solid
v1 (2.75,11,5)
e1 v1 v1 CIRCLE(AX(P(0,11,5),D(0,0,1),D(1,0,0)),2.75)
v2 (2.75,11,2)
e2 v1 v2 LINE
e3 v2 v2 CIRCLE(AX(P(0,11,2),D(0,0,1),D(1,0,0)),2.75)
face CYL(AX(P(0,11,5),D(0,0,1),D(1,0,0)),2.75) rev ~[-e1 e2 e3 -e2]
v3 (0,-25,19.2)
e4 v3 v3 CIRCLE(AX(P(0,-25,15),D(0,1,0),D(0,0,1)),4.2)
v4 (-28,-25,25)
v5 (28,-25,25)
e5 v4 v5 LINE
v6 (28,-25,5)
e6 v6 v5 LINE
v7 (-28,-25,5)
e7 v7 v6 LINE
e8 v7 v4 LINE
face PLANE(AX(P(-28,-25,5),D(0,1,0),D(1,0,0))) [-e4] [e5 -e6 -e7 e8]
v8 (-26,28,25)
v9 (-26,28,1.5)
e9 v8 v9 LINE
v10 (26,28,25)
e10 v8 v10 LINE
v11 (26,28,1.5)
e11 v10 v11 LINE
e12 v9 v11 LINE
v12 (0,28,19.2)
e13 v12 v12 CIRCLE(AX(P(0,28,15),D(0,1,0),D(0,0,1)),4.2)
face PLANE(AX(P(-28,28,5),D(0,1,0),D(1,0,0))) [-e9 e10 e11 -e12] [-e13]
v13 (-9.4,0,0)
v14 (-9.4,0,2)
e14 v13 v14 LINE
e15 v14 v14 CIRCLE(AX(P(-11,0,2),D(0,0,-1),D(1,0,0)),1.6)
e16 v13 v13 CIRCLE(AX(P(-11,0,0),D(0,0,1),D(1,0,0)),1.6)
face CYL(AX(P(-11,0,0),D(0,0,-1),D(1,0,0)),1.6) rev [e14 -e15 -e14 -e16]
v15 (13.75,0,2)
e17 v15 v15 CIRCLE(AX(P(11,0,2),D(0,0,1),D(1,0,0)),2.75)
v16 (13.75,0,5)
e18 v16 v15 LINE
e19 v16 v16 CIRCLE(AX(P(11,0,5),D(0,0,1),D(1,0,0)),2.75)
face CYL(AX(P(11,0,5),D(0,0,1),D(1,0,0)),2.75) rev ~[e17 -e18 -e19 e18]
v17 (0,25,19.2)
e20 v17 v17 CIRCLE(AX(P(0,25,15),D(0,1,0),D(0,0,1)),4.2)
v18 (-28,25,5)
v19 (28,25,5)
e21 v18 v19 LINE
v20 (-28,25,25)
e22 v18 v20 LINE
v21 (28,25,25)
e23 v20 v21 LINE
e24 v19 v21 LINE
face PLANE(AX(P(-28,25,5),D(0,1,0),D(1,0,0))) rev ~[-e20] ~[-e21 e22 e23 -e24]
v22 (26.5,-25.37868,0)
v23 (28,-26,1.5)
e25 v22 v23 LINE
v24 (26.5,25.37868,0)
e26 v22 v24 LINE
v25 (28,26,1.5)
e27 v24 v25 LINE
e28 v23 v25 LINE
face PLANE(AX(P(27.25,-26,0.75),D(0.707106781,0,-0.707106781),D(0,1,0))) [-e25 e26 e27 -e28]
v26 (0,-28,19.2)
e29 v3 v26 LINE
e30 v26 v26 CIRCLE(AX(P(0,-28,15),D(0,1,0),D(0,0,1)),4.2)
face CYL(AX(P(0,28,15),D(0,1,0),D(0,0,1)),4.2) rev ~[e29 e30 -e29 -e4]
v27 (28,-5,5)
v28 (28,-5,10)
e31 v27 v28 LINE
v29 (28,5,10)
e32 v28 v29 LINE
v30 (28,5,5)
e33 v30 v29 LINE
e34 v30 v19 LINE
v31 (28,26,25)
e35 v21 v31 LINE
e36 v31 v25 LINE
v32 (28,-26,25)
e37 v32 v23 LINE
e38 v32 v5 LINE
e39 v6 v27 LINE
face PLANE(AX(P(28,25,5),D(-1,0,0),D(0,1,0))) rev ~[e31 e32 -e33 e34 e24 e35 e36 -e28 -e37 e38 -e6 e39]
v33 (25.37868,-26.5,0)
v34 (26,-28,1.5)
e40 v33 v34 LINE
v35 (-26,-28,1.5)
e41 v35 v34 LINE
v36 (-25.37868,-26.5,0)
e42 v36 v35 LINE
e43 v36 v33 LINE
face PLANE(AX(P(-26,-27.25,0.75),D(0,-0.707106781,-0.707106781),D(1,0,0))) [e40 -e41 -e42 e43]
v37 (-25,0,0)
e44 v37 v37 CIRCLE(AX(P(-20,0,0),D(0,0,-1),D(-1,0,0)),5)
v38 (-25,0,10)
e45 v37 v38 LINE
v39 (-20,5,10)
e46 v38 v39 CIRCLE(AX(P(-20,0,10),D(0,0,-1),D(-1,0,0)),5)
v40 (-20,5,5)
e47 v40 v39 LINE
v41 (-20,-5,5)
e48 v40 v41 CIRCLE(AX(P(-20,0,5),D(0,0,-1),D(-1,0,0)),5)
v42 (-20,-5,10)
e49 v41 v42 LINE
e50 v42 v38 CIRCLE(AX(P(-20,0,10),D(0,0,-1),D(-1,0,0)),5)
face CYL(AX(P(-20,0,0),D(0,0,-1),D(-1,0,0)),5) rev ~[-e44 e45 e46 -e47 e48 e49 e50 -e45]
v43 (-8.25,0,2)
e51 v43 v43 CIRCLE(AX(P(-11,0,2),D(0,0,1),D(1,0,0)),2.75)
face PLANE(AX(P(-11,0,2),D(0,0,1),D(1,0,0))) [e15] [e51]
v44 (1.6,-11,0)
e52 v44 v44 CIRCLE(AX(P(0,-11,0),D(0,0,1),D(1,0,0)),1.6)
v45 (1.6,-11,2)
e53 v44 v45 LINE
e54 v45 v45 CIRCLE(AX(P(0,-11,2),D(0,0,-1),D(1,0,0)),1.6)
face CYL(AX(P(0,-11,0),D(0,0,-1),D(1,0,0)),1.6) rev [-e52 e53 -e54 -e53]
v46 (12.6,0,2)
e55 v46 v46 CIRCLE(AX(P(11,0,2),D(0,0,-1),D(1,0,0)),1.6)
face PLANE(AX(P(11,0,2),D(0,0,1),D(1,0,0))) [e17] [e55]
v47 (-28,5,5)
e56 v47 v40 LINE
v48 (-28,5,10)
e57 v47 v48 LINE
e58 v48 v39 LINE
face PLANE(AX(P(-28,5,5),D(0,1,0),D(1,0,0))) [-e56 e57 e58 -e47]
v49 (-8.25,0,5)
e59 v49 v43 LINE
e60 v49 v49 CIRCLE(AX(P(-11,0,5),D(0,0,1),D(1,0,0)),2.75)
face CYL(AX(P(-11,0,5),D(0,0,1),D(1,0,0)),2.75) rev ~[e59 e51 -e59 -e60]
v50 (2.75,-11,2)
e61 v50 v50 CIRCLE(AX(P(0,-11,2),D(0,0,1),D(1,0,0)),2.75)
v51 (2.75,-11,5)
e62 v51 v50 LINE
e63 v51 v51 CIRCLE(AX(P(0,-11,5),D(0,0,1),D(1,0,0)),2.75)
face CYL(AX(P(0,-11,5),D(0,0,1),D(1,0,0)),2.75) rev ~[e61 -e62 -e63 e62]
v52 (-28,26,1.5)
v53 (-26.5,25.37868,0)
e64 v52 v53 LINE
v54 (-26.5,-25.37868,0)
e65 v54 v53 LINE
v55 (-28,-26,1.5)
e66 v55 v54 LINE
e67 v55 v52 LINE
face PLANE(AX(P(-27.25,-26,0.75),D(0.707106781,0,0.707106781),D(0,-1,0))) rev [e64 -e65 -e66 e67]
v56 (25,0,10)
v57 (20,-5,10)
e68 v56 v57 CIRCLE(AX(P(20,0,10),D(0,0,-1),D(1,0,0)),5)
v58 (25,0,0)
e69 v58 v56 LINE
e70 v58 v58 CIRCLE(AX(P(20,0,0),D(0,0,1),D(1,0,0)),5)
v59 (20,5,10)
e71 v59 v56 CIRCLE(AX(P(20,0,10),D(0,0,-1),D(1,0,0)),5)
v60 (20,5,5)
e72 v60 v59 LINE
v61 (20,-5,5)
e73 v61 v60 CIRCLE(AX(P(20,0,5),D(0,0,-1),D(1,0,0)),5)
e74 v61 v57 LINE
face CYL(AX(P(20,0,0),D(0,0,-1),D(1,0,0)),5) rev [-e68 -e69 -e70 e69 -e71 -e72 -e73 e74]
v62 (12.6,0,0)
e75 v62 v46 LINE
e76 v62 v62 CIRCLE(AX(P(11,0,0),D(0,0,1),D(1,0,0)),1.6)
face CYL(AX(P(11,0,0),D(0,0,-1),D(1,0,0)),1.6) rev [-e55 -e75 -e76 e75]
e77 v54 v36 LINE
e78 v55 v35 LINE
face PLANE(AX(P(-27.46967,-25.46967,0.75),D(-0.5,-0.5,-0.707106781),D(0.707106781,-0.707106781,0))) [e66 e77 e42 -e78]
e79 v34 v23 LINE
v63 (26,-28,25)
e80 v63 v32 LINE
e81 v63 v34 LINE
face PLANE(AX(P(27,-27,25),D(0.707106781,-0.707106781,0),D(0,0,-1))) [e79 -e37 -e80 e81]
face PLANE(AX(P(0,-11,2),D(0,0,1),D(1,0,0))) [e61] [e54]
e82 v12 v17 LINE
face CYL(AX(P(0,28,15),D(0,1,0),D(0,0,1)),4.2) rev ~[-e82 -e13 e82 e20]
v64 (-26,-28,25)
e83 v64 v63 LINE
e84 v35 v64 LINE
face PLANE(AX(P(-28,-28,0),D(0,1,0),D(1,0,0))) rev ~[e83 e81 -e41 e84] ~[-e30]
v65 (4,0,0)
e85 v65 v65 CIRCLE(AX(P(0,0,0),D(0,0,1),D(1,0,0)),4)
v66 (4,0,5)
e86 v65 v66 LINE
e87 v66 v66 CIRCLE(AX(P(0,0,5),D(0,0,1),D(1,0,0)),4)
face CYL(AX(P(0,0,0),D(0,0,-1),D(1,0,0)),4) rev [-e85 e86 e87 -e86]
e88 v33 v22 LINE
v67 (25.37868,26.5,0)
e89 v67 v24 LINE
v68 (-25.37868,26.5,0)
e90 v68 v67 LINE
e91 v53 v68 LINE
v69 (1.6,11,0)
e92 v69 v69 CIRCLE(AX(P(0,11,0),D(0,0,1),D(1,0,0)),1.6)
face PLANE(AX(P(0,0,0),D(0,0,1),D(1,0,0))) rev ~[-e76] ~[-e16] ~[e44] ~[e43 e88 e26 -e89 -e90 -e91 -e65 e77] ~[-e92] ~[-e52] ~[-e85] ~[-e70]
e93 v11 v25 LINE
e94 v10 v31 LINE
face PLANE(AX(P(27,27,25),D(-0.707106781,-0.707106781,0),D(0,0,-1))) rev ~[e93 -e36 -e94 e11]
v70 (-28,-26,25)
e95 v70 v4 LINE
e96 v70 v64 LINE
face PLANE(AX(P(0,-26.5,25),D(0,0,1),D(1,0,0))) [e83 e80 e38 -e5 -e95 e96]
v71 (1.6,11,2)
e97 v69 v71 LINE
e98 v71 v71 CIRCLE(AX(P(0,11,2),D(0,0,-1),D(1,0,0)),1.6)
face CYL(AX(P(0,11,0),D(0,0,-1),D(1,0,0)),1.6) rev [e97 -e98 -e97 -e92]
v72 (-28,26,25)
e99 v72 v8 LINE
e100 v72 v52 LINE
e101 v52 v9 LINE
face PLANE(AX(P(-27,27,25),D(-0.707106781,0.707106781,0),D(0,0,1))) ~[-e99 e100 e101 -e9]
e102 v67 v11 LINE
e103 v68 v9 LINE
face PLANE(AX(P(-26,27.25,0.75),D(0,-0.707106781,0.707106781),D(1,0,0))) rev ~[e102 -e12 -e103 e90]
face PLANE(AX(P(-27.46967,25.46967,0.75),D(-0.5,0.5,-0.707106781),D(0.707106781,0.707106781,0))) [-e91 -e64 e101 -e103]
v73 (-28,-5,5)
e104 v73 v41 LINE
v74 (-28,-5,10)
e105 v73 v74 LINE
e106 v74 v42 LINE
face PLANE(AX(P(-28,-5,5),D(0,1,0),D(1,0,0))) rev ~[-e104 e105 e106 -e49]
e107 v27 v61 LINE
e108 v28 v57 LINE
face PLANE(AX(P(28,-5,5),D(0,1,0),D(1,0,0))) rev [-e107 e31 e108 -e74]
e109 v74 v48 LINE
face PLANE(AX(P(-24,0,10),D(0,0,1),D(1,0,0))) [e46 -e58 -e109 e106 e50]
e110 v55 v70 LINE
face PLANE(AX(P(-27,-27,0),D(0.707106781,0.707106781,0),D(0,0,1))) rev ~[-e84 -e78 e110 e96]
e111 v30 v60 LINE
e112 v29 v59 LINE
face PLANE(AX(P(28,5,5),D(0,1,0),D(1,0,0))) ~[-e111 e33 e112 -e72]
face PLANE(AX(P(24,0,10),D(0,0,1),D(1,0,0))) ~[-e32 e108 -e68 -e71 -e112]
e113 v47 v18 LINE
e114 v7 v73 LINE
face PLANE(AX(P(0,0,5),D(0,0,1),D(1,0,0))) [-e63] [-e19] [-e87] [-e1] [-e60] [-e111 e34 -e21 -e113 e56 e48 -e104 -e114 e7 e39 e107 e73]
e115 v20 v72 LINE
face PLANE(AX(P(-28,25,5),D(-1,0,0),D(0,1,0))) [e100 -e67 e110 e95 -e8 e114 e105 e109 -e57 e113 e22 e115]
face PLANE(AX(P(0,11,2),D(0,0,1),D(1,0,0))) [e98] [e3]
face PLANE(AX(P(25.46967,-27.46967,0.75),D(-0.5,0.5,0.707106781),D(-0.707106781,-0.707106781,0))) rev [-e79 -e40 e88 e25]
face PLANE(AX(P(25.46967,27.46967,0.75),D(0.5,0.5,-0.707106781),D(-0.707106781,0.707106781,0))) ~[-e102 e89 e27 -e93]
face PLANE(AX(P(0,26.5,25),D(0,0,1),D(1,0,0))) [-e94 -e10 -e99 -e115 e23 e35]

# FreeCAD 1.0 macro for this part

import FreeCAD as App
import Part
import Sketcher


def edges_at(feature, points):
    """Names of the edges that pass closest to the given points."""
    edges = feature.Shape.Edges
    near = lambda p: min(range(len(edges)), key=lambda i: edges[i].distToShape(Part.Vertex(*p))[0])
    return sorted({f"Edge{near(p) + 1}" for p in points})

doc = App.newDocument("Part")
params = doc.addObject("Spreadsheet::Sheet", "Params")
for row, (alias, value) in enumerate([
    ("sketch1_diameter", "8 mm"),
    ("sketch1_diameter2", "3.2 mm"),
    ("sketch1_width", "56 mm"),
    ("pad1_length", "5 mm"),
    ("sketch2_width", "56 mm"),
    ("sketch2_height", "3 mm"),
    ("pad2_length", "20 mm"),
    ("sketch3_diameter", "8.4 mm"),
    ("sketch4_diameter", "5.5 mm"),
    ("pocket2_length", "3 mm"),
    ("sketch5_width", "8 mm"),
    ("sketch5_height", "10 mm"),
    ("pad3_length", "5 mm"),
    ("sketch6_diameter", "10 mm"),
    ("chamfer_size", "2 mm"),
    ("chamfer2_size", "1.5 mm"),
], start=1):
    params.set(f"A{row}", alias)
    params.set(f"B{row}", "=" + value)
    params.setAlias(f"B{row}", alias)

body = doc.addObject("PartDesign::Body", "Body")

# Sketch on XY plane
sketch1 = doc.addObject("Sketcher::SketchObject", "Sketch")
body.addObject(sketch1)
sketch1.AttachmentSupport = (doc.XY_Plane, [""])
sketch1.MapMode = "FlatFace"
sketch1.addGeometry(Part.LineSegment(App.Vector(-28, 28, 0), App.Vector(-28, -28, 0)), False)
sketch1.addGeometry(Part.LineSegment(App.Vector(-28, -28, 0), App.Vector(28, -28, 0)), False)
sketch1.addGeometry(Part.LineSegment(App.Vector(28, -28, 0), App.Vector(28, 28, 0)), False)
sketch1.addGeometry(Part.LineSegment(App.Vector(28, 28, 0), App.Vector(-28, 28, 0)), False)
sketch1.addGeometry(Part.Circle(App.Vector(0, -11, 0), App.Vector(0, 0, 1), 1.6), False)
sketch1.addGeometry(Part.Circle(App.Vector(-11, 0, 0), App.Vector(0, 0, 1), 1.6), False)
sketch1.addGeometry(Part.Circle(App.Vector(0, 0, 0), App.Vector(0, 0, 1), 4), False)
sketch1.addGeometry(Part.Circle(App.Vector(11, 0, 0), App.Vector(0, 0, 1), 1.6), False)
sketch1.addGeometry(Part.Circle(App.Vector(0, 11, 0), App.Vector(0, 0, 1), 1.6), False)
sketch1.addConstraint(Sketcher.Constraint("Coincident", 0, 2, 1, 1))
sketch1.addConstraint(Sketcher.Constraint("Coincident", 1, 2, 2, 1))
sketch1.addConstraint(Sketcher.Constraint("Coincident", 2, 2, 3, 1))
sketch1.addConstraint(Sketcher.Constraint("Coincident", 3, 2, 0, 1))
sketch1.addConstraint(Sketcher.Constraint("Vertical", 0))
sketch1.addConstraint(Sketcher.Constraint("Horizontal", 1))
sketch1.addConstraint(Sketcher.Constraint("Vertical", 2))
sketch1.addConstraint(Sketcher.Constraint("Horizontal", 3))
sketch1.addConstraint(Sketcher.Constraint("Coincident", 6, 3, -1, 1))
sketch1.addConstraint(Sketcher.Constraint("Equal", 4, 5))
sketch1.addConstraint(Sketcher.Constraint("Equal", 5, 7))
sketch1.addConstraint(Sketcher.Constraint("Equal", 7, 8))
sketch1.addConstraint(Sketcher.Constraint("Symmetric", 5, 3, 7, 3, -1, 1))
sketch1.addConstraint(Sketcher.Constraint("Symmetric", 4, 3, 8, 3, -1, 1))
sketch1.addConstraint(Sketcher.Constraint("Symmetric", 0, 2, 2, 2, -1, 1))
sketch1.addConstraint(Sketcher.Constraint("PointOnObject", 4, 3, -2))
sketch1.addConstraint(Sketcher.Constraint("PointOnObject", 5, 3, -1))
sketch1.addConstraint(Sketcher.Constraint("Equal", 3, 0))
sketch1.addConstraint(Sketcher.Constraint("Diameter", 6, 8.0))
sketch1.addConstraint(Sketcher.Constraint("Diameter", 4, 3.2))
sketch1.addConstraint(Sketcher.Constraint("DistanceX", 1, 1, 1, 2, 56.0))
sketch1.addConstraint(Sketcher.Constraint("DistanceY", 4, 3, -1, 1, 11.0))
sketch1.addConstraint(Sketcher.Constraint("DistanceX", 5, 3, -1, 1, 11.0))
sketch1.setExpression("Constraints[18]", "Params.sketch1_diameter")
sketch1.setExpression("Constraints[19]", "Params.sketch1_diameter2")
sketch1.setExpression("Constraints[20]", "Params.sketch1_width")
pad1 = doc.addObject("PartDesign::Pad", "Pad")
body.addObject(pad1)
pad1.Profile = sketch1
pad1.setExpression("Length", "Params.pad1_length")

# Sketch on XY plane
sketch2 = doc.addObject("Sketcher::SketchObject", "Sketch001")
body.addObject(sketch2)
sketch2.AttachmentSupport = (doc.XY_Plane, [""])
sketch2.MapMode = "FlatFace"
sketch2.AttachmentOffset = App.Placement(App.Vector(0, 0, 5), App.Rotation())
sketch2.addGeometry(Part.LineSegment(App.Vector(-28, 28, 0), App.Vector(-28, 25, 0)), False)
sketch2.addGeometry(Part.LineSegment(App.Vector(-28, 25, 0), App.Vector(28, 25, 0)), False)
sketch2.addGeometry(Part.LineSegment(App.Vector(28, 25, 0), App.Vector(28, 28, 0)), False)
sketch2.addGeometry(Part.LineSegment(App.Vector(28, 28, 0), App.Vector(-28, 28, 0)), False)
sketch2.addGeometry(Part.LineSegment(App.Vector(-28, -25, 0), App.Vector(-28, -28, 0)), False)
sketch2.addGeometry(Part.LineSegment(App.Vector(-28, -28, 0), App.Vector(28, -28, 0)), False)
sketch2.addGeometry(Part.LineSegment(App.Vector(28, -28, 0), App.Vector(28, -25, 0)), False)
sketch2.addGeometry(Part.LineSegment(App.Vector(28, -25, 0), App.Vector(-28, -25, 0)), False)
sketch2.addConstraint(Sketcher.Constraint("Coincident", 0, 2, 1, 1))
sketch2.addConstraint(Sketcher.Constraint("Coincident", 1, 2, 2, 1))
sketch2.addConstraint(Sketcher.Constraint("Coincident", 2, 2, 3, 1))
sketch2.addConstraint(Sketcher.Constraint("Coincident", 3, 2, 0, 1))
sketch2.addConstraint(Sketcher.Constraint("Coincident", 4, 2, 5, 1))
sketch2.addConstraint(Sketcher.Constraint("Coincident", 5, 2, 6, 1))
sketch2.addConstraint(Sketcher.Constraint("Coincident", 6, 2, 7, 1))
sketch2.addConstraint(Sketcher.Constraint("Coincident", 7, 2, 4, 1))
sketch2.addConstraint(Sketcher.Constraint("Vertical", 0))
sketch2.addConstraint(Sketcher.Constraint("Horizontal", 1))
sketch2.addConstraint(Sketcher.Constraint("Vertical", 2))
sketch2.addConstraint(Sketcher.Constraint("Horizontal", 3))
sketch2.addConstraint(Sketcher.Constraint("Vertical", 4))
sketch2.addConstraint(Sketcher.Constraint("Horizontal", 5))
sketch2.addConstraint(Sketcher.Constraint("Vertical", 6))
sketch2.addConstraint(Sketcher.Constraint("Horizontal", 7))
sketch2.addConstraint(Sketcher.Constraint("Symmetric", 2, 2, 4, 2, -1, 1))
sketch2.addConstraint(Sketcher.Constraint("Symmetric", 0, 2, 6, 2, -1, 1))
sketch2.addConstraint(Sketcher.Constraint("Vertical", 3, 2, 4, 2))
sketch2.addConstraint(Sketcher.Constraint("DistanceX", 1, 1, 1, 2, 56.0))
sketch2.addConstraint(Sketcher.Constraint("DistanceY", 0, 2, 0, 1, 3.0))
sketch2.addConstraint(Sketcher.Constraint("DistanceY", -1, 1, 0, 2, 25.0))
sketch2.setExpression("Constraints[19]", "Params.sketch2_width")
sketch2.setExpression("Constraints[20]", "Params.sketch2_height")
pad2 = doc.addObject("PartDesign::Pad", "Pad001")
body.addObject(pad2)
pad2.Profile = sketch2
pad2.setExpression("Length", "Params.pad2_length")

# Sketch on XZ plane
sketch3 = doc.addObject("Sketcher::SketchObject", "Sketch002")
body.addObject(sketch3)
sketch3.AttachmentSupport = (doc.XZ_Plane, [""])
sketch3.MapMode = "FlatFace"
sketch3.AttachmentOffset = App.Placement(App.Vector(0, 0, -28), App.Rotation())
sketch3.addGeometry(Part.Circle(App.Vector(0, 15, 0), App.Vector(0, 0, 1), 4.2), False)
sketch3.addConstraint(Sketcher.Constraint("PointOnObject", 0, 3, -2))
sketch3.addConstraint(Sketcher.Constraint("Diameter", 0, 8.4))
sketch3.addConstraint(Sketcher.Constraint("DistanceY", -1, 1, 0, 3, 15.0))
sketch3.setExpression("Constraints[1]", "Params.sketch3_diameter")
pocket1 = doc.addObject("PartDesign::Pocket", "Pocket")
body.addObject(pocket1)
pocket1.Profile = sketch3
pocket1.Type = "ThroughAll"
pocket1.Reversed = True

# Sketch on XY plane
sketch4 = doc.addObject("Sketcher::SketchObject", "Sketch003")
body.addObject(sketch4)
sketch4.AttachmentSupport = (doc.XY_Plane, [""])
sketch4.MapMode = "FlatFace"
sketch4.AttachmentOffset = App.Placement(App.Vector(0, 0, 5), App.Rotation())
sketch4.addGeometry(Part.Circle(App.Vector(-11, 0, 0), App.Vector(0, 0, 1), 2.8), False)
sketch4.addGeometry(Part.Circle(App.Vector(0, 11, 0), App.Vector(0, 0, 1), 2.8), False)
sketch4.addGeometry(Part.Circle(App.Vector(11, 0, 0), App.Vector(0, 0, 1), 2.8), False)
sketch4.addGeometry(Part.Circle(App.Vector(0, -11, 0), App.Vector(0, 0, 1), 2.8), False)
sketch4.addConstraint(Sketcher.Constraint("Equal", 0, 1))
sketch4.addConstraint(Sketcher.Constraint("Equal", 1, 2))
sketch4.addConstraint(Sketcher.Constraint("Equal", 2, 3))
sketch4.addConstraint(Sketcher.Constraint("Symmetric", 0, 3, 2, 3, -1, 1))
sketch4.addConstraint(Sketcher.Constraint("Symmetric", 1, 3, 3, 3, -1, 1))
sketch4.addConstraint(Sketcher.Constraint("PointOnObject", 0, 3, -1))
sketch4.addConstraint(Sketcher.Constraint("PointOnObject", 1, 3, -2))
sketch4.addConstraint(Sketcher.Constraint("Diameter", 0, 5.5))
sketch4.addConstraint(Sketcher.Constraint("DistanceX", 0, 3, -1, 1, 11.0))
sketch4.addConstraint(Sketcher.Constraint("DistanceY", -1, 1, 1, 3, 11.0))
sketch4.setExpression("Constraints[7]", "Params.sketch4_diameter")
pocket2 = doc.addObject("PartDesign::Pocket", "Pocket001")
body.addObject(pocket2)
pocket2.Profile = sketch4
pocket2.setExpression("Length", "Params.pocket2_length")

# Sketch on XY plane
sketch5 = doc.addObject("Sketcher::SketchObject", "Sketch004")
body.addObject(sketch5)
sketch5.AttachmentSupport = (doc.XY_Plane, [""])
sketch5.MapMode = "FlatFace"
sketch5.AttachmentOffset = App.Placement(App.Vector(0, 0, 5), App.Rotation())
sketch5.addGeometry(Part.LineSegment(App.Vector(-28, 5, 0), App.Vector(-28, -5, 0)), False)
sketch5.addGeometry(Part.LineSegment(App.Vector(-28, -5, 0), App.Vector(-20, -5, 0)), False)
sketch5.addGeometry(Part.LineSegment(App.Vector(-20, -5, 0), App.Vector(-20, 5, 0)), False)
sketch5.addGeometry(Part.LineSegment(App.Vector(-20, 5, 0), App.Vector(-28, 5, 0)), False)
sketch5.addConstraint(Sketcher.Constraint("Coincident", 0, 2, 1, 1))
sketch5.addConstraint(Sketcher.Constraint("Coincident", 1, 2, 2, 1))
sketch5.addConstraint(Sketcher.Constraint("Coincident", 2, 2, 3, 1))
sketch5.addConstraint(Sketcher.Constraint("Coincident", 3, 2, 0, 1))
sketch5.addConstraint(Sketcher.Constraint("Vertical", 0))
sketch5.addConstraint(Sketcher.Constraint("Horizontal", 1))
sketch5.addConstraint(Sketcher.Constraint("Vertical", 2))
sketch5.addConstraint(Sketcher.Constraint("Horizontal", 3))
sketch5.addConstraint(Sketcher.Constraint("DistanceX", 1, 1, 1, 2, 8.0))
sketch5.addConstraint(Sketcher.Constraint("DistanceY", 0, 2, 0, 1, 10.0))
sketch5.addConstraint(Sketcher.Constraint("DistanceX", 0, 2, -1, 1, 28.0))
sketch5.addConstraint(Sketcher.Constraint("DistanceY", 0, 2, -1, 1, 5.0))
sketch5.setExpression("Constraints[8]", "Params.sketch5_width")
sketch5.setExpression("Constraints[9]", "Params.sketch5_height")
pad3 = doc.addObject("PartDesign::Pad", "Pad002")
body.addObject(pad3)
pad3.Profile = sketch5
pad3.setExpression("Length", "Params.pad3_length")
doc.recompute()

mirrored = doc.addObject("PartDesign::Mirrored", "Mirrored")
body.addObject(mirrored)
mirrored.Originals = [pad3]
mirrored.MirrorPlane = (doc.YZ_Plane, [""])
body.Tip = mirrored

# Sketch on XY plane
sketch6 = doc.addObject("Sketcher::SketchObject", "Sketch005")
body.addObject(sketch6)
sketch6.AttachmentSupport = (doc.XY_Plane, [""])
sketch6.MapMode = "FlatFace"
sketch6.addGeometry(Part.Circle(App.Vector(-20, 0, 0), App.Vector(0, 0, 1), 5), False)
sketch6.addConstraint(Sketcher.Constraint("PointOnObject", 0, 3, -1))
sketch6.addConstraint(Sketcher.Constraint("Diameter", 0, 10.0))
sketch6.addConstraint(Sketcher.Constraint("DistanceX", 0, 3, -1, 1, 20.0))
sketch6.setExpression("Constraints[1]", "Params.sketch6_diameter")
pocket3 = doc.addObject("PartDesign::Pocket", "Pocket002")
body.addObject(pocket3)
pocket3.Profile = sketch6
pocket3.Type = "ThroughAll"
pocket3.Reversed = True
doc.recompute()

mirrored2 = doc.addObject("PartDesign::Mirrored", "Mirrored001")
body.addObject(mirrored2)
mirrored2.Originals = [pocket3]
mirrored2.MirrorPlane = (doc.YZ_Plane, [""])
body.Tip = mirrored2
doc.recompute()

chamfer = doc.addObject("PartDesign::Chamfer", "Chamfer")
body.addObject(chamfer)
chamfer.Base = (mirrored2, edges_at(mirrored2, [
    (-28, 28, 12.5),
    (28, 28, 12.5),
    (28, -28, 12.5),
    (-28, -28, 12.5),
]))
chamfer.setExpression("Size", "Params.chamfer_size")
doc.recompute()

chamfer2 = doc.addObject("PartDesign::Chamfer", "Chamfer001")
body.addObject(chamfer2)
chamfer2.Base = (chamfer, edges_at(chamfer, [
    (28, 0, 0),
    (-28, 0, 0),
    (0, 28, 0),
    (0, -28, 0),
    (-27, 27, 0),
    (-27, -27, 0),
    (27, 27, 0),
    (27, -27, 0),
]))
chamfer2.setExpression("Size", "Params.chamfer2_size")

doc.recompute()
